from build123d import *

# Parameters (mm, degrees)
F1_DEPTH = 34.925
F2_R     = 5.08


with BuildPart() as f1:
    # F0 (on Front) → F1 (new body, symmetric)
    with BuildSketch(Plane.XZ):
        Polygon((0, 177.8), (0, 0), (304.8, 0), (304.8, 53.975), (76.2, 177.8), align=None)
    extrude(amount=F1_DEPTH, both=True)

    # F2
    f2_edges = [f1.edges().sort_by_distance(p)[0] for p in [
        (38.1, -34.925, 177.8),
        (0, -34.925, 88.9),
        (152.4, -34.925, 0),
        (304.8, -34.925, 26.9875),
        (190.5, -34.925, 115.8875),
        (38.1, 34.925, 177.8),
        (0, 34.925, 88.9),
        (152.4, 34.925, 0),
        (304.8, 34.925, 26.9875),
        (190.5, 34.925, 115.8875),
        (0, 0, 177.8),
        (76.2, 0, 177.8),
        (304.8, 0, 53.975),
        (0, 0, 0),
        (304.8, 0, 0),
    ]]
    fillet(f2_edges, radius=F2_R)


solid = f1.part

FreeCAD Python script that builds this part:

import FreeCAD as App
import Part
import Sketcher
Q = App.Units.Quantity


def add_polygon(sketch, points):
    """Adds a closed chain of lines whose ends are joined by coincident constraints."""
    first, n = sketch.GeometryCount, len(points)
    for a, b in zip(points, points[1:] + points[:1]):
        sketch.addGeometry(Part.LineSegment(App.Vector(*a, 0), App.Vector(*b, 0)), False)
    for i in range(n):
        sketch.addConstraint(Sketcher.Constraint("Coincident", first + i, 2, first + (i + 1) % n, 1))

doc = App.newDocument("Part")
params = doc.addObject("Spreadsheet::Sheet", "Params")
for row, (alias, value) in enumerate([
    ("sketch1_width", "12 in"),
    ("sketch1_width2", "3 in"),
    ("sketch1_height", "7 in"),
    ("sketch1_height2", "2.125 in"),
    ("pad1_length", "2.75 in"),
    ("fillet_radius", "0.2 in"),
], start=1):
    params.set(f"A{row}", alias)
    params.set(f"B{row}", "=" + value)
    params.setAlias(f"B{row}", alias)

body = doc.addObject("PartDesign::Body", "Body")

sketch1 = doc.addObject("Sketcher::SketchObject", "Sketch")
body.addObject(sketch1)
sketch1.AttachmentSupport = (doc.XZ_Plane, [""])
sketch1.MapMode = "FlatFace"
add_polygon(sketch1, [(0, 177.8), (0, 0), (304.8, 0), (304.8, 53.975), (76.2, 177.8)])
sketch1.addConstraint([
    Sketcher.Constraint("Vertical", 0),
    Sketcher.Constraint("Horizontal", 1),
    Sketcher.Constraint("Vertical", 2),
    Sketcher.Constraint("Horizontal", 4),
    Sketcher.Constraint("Coincident", 0, 2, -1, 1),
    Sketcher.Constraint("DistanceX", 1, 1, 1, 2, Q("12 in")),
    Sketcher.Constraint("DistanceX", 4, 2, 4, 1, Q("3 in")),
    Sketcher.Constraint("DistanceY", 0, 2, 0, 1, Q("7 in")),
    Sketcher.Constraint("DistanceY", 2, 1, 2, 2, Q("2.125 in")),
])
sketch1.setExpression("Constraints[10]", "Params.sketch1_width")
sketch1.setExpression("Constraints[11]", "Params.sketch1_width2")
sketch1.setExpression("Constraints[12]", "Params.sketch1_height")
sketch1.setExpression("Constraints[13]", "Params.sketch1_height2")
pad1 = doc.addObject("PartDesign::Pad", "Pad")
body.addObject(pad1)
pad1.Profile = sketch1
pad1.setExpression("Length", "Params.pad1_length")
pad1.Midplane = True
doc.recompute()

fillet = doc.addObject("PartDesign::Fillet", "Fillet")
body.addObject(fillet)
fillet.Base = (pad1, ["Edge1"])
fillet.UseAllEdges = True
fillet.setExpression("Radius", "Params.fillet_radius")

doc.recompute()
